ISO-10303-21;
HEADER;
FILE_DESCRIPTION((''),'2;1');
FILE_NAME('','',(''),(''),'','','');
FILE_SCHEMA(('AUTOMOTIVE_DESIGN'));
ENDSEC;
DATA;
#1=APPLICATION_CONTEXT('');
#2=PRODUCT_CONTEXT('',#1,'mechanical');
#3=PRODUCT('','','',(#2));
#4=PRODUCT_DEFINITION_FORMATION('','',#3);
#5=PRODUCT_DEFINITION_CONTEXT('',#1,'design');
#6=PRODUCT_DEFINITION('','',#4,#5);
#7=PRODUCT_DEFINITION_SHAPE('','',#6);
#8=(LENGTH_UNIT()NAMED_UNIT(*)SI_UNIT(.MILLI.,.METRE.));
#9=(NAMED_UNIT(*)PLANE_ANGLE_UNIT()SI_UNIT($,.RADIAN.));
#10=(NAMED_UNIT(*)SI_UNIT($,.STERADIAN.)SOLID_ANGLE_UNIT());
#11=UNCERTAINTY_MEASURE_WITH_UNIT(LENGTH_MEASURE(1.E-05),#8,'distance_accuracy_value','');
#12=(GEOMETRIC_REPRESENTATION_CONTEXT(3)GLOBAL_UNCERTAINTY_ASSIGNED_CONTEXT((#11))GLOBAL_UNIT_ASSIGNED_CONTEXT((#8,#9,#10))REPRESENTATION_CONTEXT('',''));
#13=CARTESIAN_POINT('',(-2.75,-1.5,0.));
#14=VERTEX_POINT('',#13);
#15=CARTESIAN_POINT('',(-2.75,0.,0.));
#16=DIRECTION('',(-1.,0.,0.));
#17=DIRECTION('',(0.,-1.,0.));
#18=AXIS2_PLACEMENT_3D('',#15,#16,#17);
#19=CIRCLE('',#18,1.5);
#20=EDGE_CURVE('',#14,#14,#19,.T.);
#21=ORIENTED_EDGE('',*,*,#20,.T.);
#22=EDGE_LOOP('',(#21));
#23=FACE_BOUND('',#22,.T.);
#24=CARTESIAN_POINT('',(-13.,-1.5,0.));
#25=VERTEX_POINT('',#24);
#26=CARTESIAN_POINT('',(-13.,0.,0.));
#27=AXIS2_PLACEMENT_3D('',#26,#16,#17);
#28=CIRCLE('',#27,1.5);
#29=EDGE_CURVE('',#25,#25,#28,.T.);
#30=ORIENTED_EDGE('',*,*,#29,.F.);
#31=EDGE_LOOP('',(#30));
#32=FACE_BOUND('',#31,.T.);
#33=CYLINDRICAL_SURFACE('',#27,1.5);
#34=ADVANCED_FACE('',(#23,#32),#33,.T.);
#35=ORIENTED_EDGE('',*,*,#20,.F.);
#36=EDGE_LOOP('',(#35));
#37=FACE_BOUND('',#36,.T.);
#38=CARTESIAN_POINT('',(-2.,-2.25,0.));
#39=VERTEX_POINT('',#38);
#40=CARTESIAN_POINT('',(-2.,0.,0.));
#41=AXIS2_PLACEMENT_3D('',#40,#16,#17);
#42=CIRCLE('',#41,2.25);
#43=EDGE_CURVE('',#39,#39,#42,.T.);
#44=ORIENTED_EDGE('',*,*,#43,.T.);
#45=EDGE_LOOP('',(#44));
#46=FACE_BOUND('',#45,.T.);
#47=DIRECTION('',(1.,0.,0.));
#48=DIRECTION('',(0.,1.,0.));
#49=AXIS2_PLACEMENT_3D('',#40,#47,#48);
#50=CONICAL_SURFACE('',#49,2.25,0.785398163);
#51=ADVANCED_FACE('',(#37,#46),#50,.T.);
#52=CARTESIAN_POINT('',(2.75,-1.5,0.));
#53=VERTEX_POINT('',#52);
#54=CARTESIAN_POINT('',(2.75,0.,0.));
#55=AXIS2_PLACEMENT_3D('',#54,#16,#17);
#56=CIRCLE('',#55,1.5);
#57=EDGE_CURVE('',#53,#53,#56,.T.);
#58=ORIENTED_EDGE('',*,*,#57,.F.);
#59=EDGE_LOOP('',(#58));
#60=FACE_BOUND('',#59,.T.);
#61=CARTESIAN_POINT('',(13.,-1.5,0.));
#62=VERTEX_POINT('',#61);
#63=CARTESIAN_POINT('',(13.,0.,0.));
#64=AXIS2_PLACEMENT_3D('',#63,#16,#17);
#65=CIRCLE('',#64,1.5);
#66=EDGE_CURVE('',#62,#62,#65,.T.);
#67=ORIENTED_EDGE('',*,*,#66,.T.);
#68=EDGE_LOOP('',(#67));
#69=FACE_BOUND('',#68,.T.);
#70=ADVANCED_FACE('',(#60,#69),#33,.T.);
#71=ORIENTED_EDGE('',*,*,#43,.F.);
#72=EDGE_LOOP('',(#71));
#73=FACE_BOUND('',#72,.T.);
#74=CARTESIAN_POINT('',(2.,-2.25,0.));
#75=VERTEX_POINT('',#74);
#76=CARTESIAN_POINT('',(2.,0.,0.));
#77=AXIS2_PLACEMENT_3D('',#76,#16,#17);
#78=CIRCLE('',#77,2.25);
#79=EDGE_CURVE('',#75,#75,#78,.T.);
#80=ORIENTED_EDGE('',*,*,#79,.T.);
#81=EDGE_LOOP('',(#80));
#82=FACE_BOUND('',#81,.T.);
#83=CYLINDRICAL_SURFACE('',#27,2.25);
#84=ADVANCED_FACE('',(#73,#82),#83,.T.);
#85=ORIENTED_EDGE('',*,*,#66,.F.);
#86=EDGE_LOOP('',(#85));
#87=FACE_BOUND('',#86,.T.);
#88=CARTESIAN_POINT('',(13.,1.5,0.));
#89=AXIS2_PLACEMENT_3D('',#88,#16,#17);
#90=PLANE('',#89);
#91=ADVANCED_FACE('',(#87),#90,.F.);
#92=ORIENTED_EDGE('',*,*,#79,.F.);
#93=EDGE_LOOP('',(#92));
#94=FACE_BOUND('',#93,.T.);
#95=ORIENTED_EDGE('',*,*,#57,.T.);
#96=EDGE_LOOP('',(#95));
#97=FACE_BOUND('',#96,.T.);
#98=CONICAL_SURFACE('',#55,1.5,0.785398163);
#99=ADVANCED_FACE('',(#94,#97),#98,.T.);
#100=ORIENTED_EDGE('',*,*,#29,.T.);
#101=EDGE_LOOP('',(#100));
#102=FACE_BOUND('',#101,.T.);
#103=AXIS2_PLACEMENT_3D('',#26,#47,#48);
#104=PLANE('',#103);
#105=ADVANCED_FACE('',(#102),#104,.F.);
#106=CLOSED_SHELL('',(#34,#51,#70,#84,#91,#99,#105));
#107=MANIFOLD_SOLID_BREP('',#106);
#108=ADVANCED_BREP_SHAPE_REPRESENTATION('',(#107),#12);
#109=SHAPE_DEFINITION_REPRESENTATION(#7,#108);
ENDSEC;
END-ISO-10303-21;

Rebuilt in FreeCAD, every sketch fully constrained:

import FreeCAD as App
import Part
import Sketcher
Q = App.Units.Quantity


def add_polygon(sketch, points):
    """Adds a closed chain of lines whose ends are joined by coincident constraints."""
    first, n = sketch.GeometryCount, len(points)
    for a, b in zip(points, points[1:] + points[:1]):
        sketch.addGeometry(Part.LineSegment(App.Vector(*a, 0), App.Vector(*b, 0)), False)
    for i in range(n):
        sketch.addConstraint(Sketcher.Constraint("Coincident", first + i, 2, first + (i + 1) % n, 1))

doc = App.newDocument("Part")
body = doc.addObject("PartDesign::Body", "Body")

# Sketch on XY plane
sketch1 = doc.addObject("Sketcher::SketchObject", "Sketch")
body.addObject(sketch1)
sketch1.AttachmentSupport = (doc.XY_Plane, [""])
sketch1.MapMode = "FlatFace"
add_polygon(sketch1, [(-13, 1.5), (-13, 0), (13, 0), (13, 1.5), (2.75, 1.5), (2, 2.25), (-2, 2.25), (-2.75, 1.5)])  # lines 0-7
sketch1.addConstraint([
    Sketcher.Constraint("Vertical", 0),
    Sketcher.Constraint("Horizontal", 1),
    Sketcher.Constraint("Vertical", 2),
    Sketcher.Constraint("Horizontal", 3),
    Sketcher.Constraint("Horizontal", 5),
    Sketcher.Constraint("Horizontal", 7),
    Sketcher.Constraint("Symmetric", 0, 2, 1, 2, -1, 1),
    Sketcher.Constraint("Symmetric", 3, 2, 6, 2, -2),
    Sketcher.Constraint("Perpendicular", 4, 6),
    Sketcher.Constraint("Equal", 4, 6),
    Sketcher.Constraint("DistanceX", 1, 1, 1, 2, Q("26 mm")),
    Sketcher.Constraint("DistanceX", 5, 2, 5, 1, Q("4 mm")),
    Sketcher.Constraint("DistanceY", 0, 2, 0, 1, Q("1.5 mm")),
    Sketcher.Constraint("DistanceX", 3, 2, 3, 1, Q("10.25 mm")),
])
revolution = doc.addObject("PartDesign::Revolution", "Revolution")
body.addObject(revolution)
revolution.Profile = sketch1
revolution.ReferenceAxis = (sketch1, ["H_Axis"])
revolution.Angle = 360

doc.recompute()
